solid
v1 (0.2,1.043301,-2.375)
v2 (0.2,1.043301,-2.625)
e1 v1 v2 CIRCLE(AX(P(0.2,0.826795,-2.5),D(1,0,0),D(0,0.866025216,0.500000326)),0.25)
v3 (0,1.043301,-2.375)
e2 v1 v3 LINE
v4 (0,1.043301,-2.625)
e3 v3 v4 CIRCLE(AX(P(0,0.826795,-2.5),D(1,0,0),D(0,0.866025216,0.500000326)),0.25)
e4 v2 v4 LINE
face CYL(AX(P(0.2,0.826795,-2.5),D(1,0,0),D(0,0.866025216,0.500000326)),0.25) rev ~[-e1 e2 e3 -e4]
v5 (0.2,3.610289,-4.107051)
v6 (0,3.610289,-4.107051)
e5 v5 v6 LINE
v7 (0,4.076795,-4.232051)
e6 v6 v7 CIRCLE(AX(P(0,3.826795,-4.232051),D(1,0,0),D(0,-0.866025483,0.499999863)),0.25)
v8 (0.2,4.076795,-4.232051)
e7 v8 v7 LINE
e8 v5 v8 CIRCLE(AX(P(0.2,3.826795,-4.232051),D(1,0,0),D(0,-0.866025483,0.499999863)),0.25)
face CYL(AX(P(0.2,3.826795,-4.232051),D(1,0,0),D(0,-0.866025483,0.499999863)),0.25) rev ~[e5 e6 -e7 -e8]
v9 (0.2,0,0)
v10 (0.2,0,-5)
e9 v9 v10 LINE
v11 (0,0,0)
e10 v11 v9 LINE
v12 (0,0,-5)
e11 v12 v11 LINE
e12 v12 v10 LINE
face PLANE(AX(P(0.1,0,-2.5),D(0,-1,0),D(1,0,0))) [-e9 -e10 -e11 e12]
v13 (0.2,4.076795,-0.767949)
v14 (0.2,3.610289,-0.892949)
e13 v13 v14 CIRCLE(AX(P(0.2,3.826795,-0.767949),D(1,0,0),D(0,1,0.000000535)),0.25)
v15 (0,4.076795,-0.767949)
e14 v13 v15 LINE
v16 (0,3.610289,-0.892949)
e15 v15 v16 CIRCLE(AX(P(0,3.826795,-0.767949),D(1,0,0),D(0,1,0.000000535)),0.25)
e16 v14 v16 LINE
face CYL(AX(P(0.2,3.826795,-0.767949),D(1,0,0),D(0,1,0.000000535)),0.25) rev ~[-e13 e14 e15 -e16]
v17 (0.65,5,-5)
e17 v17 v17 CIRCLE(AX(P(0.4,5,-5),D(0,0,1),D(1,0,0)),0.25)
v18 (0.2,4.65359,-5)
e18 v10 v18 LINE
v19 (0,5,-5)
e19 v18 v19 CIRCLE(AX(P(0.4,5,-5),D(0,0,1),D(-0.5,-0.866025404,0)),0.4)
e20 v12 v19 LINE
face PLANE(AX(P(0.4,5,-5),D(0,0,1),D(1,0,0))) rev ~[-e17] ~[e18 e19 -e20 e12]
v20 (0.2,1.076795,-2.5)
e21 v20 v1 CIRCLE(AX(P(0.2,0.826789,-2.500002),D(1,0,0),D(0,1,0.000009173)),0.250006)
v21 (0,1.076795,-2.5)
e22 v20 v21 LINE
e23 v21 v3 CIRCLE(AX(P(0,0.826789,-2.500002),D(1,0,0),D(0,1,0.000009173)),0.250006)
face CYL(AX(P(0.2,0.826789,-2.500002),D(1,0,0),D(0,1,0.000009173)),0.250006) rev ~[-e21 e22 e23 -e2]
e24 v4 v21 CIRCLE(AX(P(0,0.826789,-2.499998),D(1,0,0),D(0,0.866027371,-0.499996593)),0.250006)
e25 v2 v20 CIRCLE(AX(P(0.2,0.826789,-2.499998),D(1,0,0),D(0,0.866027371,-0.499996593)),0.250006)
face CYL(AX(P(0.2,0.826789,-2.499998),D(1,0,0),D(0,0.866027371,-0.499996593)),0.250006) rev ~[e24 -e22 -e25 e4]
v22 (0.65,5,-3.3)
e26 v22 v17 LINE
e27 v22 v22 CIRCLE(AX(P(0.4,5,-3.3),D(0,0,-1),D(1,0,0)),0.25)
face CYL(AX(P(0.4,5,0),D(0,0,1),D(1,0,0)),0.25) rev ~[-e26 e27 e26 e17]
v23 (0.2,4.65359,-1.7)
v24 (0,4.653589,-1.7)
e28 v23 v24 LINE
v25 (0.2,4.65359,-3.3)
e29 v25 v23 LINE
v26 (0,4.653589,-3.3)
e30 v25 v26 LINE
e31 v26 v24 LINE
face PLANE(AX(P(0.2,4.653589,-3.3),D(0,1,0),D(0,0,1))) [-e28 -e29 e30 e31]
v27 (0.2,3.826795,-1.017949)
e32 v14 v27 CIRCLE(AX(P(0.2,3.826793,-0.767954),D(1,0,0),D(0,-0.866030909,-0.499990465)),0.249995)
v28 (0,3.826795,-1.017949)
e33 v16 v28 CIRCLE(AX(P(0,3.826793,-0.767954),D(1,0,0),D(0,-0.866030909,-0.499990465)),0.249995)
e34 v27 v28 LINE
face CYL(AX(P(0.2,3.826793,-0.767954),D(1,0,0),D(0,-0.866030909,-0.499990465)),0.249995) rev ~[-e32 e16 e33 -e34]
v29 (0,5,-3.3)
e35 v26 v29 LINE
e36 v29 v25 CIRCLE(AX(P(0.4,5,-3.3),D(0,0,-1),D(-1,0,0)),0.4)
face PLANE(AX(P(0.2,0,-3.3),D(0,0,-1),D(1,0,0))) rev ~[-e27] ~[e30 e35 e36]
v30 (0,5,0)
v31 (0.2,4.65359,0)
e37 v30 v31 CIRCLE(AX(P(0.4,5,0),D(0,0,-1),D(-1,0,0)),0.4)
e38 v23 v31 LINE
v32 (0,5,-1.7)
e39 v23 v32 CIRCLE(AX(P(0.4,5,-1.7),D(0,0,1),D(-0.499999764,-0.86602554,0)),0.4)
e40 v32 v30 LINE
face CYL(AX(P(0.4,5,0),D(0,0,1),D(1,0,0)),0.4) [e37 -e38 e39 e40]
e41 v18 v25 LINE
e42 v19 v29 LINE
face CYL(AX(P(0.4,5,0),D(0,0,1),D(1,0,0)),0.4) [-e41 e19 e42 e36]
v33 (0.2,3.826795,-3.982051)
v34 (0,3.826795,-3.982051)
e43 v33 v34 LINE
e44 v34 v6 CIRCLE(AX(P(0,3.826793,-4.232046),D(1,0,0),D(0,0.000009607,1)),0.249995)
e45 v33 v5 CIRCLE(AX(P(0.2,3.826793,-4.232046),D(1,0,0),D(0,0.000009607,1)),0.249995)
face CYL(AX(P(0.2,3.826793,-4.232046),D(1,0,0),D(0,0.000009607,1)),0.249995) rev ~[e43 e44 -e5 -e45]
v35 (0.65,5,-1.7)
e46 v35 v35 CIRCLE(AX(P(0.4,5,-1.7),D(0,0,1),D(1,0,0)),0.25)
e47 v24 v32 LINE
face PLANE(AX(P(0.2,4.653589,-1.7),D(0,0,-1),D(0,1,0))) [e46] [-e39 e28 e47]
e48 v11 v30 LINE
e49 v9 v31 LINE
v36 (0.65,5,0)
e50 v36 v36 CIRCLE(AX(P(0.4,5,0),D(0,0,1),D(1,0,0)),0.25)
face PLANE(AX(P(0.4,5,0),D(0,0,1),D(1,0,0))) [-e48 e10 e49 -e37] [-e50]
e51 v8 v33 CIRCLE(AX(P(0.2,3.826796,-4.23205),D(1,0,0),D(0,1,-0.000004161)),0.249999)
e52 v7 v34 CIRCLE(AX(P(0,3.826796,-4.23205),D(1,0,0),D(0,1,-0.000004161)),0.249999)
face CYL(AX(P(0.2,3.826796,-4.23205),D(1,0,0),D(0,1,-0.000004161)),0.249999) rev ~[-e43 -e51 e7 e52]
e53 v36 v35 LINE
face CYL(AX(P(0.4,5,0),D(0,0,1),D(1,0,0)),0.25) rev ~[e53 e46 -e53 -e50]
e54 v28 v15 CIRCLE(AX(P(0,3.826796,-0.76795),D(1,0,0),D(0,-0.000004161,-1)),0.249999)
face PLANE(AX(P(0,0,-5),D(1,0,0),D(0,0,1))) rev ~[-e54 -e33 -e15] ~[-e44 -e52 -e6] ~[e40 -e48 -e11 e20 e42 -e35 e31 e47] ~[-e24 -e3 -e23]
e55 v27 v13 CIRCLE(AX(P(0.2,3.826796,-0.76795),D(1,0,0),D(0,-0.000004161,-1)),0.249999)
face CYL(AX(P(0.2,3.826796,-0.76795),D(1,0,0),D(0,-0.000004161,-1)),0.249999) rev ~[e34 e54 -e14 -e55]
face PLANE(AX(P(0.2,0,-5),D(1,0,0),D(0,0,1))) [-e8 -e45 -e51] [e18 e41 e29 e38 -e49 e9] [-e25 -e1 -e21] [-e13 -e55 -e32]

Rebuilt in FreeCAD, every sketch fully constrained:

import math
import FreeCAD as App
import Part
import Sketcher

V = App.Vector


def add_polygon(sketch, points):
    """Adds a closed chain of lines whose ends are joined by coincident constraints."""
    first, n = sketch.GeometryCount, len(points)
    for a, b in zip(points, points[1:] + points[:1]):
        sketch.addGeometry(Part.LineSegment(App.Vector(*a, 0), App.Vector(*b, 0)), False)
    for i in range(n):
        sketch.addConstraint(Sketcher.Constraint("Coincident", first + i, 2, first + (i + 1) % n, 1))

doc = App.newDocument("Part")
body = doc.addObject("PartDesign::Body", "Body")

# Sketch on XZ plane
sketch1 = body.newObject("Sketcher::SketchObject", "Sketch")
sketch1.AttachmentSupport = (doc.getObject("XZ_Plane"), [""])
sketch1.MapMode = "FlatFace"
add_polygon(sketch1, [(0, 0), (0, -5), (0.2, -5), (0.2, 0)])  # lines 0-3
sketch1.addConstraint(Sketcher.Constraint("Vertical", 0))
sketch1.addConstraint(Sketcher.Constraint("Horizontal", 1))
sketch1.addConstraint(Sketcher.Constraint("Vertical", 2))
sketch1.addConstraint(Sketcher.Constraint("Horizontal", 3))
sketch1.addConstraint(Sketcher.Constraint("Coincident", 3, 2, -1, 1))
sketch1.addConstraint(Sketcher.Constraint("DistanceY", 0, 2, 0, 1, 5.0))
sketch1.addConstraint(Sketcher.Constraint("DistanceX", 1, 1, 1, 2, 0.2))
pad1 = body.newObject("PartDesign::Pad", "Pad")
pad1.Profile = sketch1
pad1.Length = 5
pad1.Reversed = True

# Sketch on XY plane
sketch2 = body.newObject("Sketcher::SketchObject", "Sketch001")
sketch2.AttachmentSupport = (doc.getObject("XY_Plane"), [""])
sketch2.MapMode = "FlatFace"
sketch2.addGeometry(Part.Circle(V(0.4, 5, 0), V(0, 0, 1), 0.4), False)
sketch2.addConstraint(Sketcher.Constraint("Diameter", 0, 0.8))
sketch2.addConstraint(Sketcher.Constraint("DistanceY", -1, 1, 0, 3, 5.0))
sketch2.addConstraint(Sketcher.Constraint("DistanceX", -1, 1, 0, 3, 0.4))
pad2 = body.newObject("PartDesign::Pad", "Pad001")
pad2.Profile = sketch2
pad2.Length = 5
pad2.Reversed = True

# Sketch on XY plane
sketch3 = body.newObject("Sketcher::SketchObject", "Sketch002")
sketch3.AttachmentSupport = (doc.getObject("XY_Plane"), [""])
sketch3.MapMode = "FlatFace"
sketch3.addGeometry(Part.Circle(V(0.4, 5, 0), V(0, 0, 1), 0.25), False)
sketch3.addConstraint(Sketcher.Constraint("Diameter", 0, 0.5))
sketch3.addConstraint(Sketcher.Constraint("DistanceY", -1, 1, 0, 3, 5.0))
sketch3.addConstraint(Sketcher.Constraint("DistanceX", -1, 1, 0, 3, 0.4))
pocket1 = body.newObject("PartDesign::Pocket", "Pocket")
pocket1.Profile = sketch3
pocket1.Type = "ThroughAll"

# Sketch on XZ plane
sketch4 = body.newObject("Sketcher::SketchObject", "Sketch003")
sketch4.AttachmentSupport = (doc.getObject("XZ_Plane"), [""])
sketch4.MapMode = "FlatFace"
add_polygon(sketch4, [(0.2, -1.7), (0.2, -3.3), (0.933872, -3.3), (0.933872, -1.7)])  # lines 0-3
sketch4.addConstraint(Sketcher.Constraint("Vertical", 0))
sketch4.addConstraint(Sketcher.Constraint("Horizontal", 1))
sketch4.addConstraint(Sketcher.Constraint("Vertical", 2))
sketch4.addConstraint(Sketcher.Constraint("Horizontal", 3))
sketch4.addConstraint(Sketcher.Constraint("DistanceY", 0, 2, 0, 1, 1.6))
sketch4.addConstraint(Sketcher.Constraint("DistanceX", -1, 1, 0, 2, 0.2))
sketch4.addConstraint(Sketcher.Constraint("DistanceY", 0, 2, -1, 1, 3.3))
sketch4.addConstraint(Sketcher.Constraint("DistanceX", 1, 1, 1, 2, 0.733872))
pocket2 = body.newObject("PartDesign::Pocket", "Pocket001")
pocket2.Profile = sketch4
pocket2.Type = "ThroughAll"

# Sketch on YZ plane
sketch5 = body.newObject("Sketcher::SketchObject", "Sketch004")
sketch5.AttachmentSupport = (doc.getObject("YZ_Plane"), [""])
sketch5.MapMode = "FlatFace"
sketch5.AttachmentOffset = App.Placement(V(0, 0, 0.2), App.Rotation())
add_polygon(sketch5, [(4.653589, -1.7), (4.653589, -3.3), (5.705455, -3.3), (5.705455, -1.7)])  # lines 0-3
sketch5.addConstraint(Sketcher.Constraint("Vertical", 0))
sketch5.addConstraint(Sketcher.Constraint("Horizontal", 1))
sketch5.addConstraint(Sketcher.Constraint("Vertical", 2))
sketch5.addConstraint(Sketcher.Constraint("Horizontal", 3))
sketch5.addConstraint(Sketcher.Constraint("DistanceY", 0, 2, 0, 1, 1.6))
sketch5.addConstraint(Sketcher.Constraint("DistanceY", 0, 2, -1, 1, 3.3))
sketch5.addConstraint(Sketcher.Constraint("DistanceX", 1, 1, 1, 2, 1.051865))
sketch5.addConstraint(Sketcher.Constraint("DistanceX", -1, 1, 0, 2, 4.653589))
pocket3 = body.newObject("PartDesign::Pocket", "Pocket002")
pocket3.Profile = sketch5
pocket3.Type = "ThroughAll"

# Sketch on YZ plane
sketch6 = body.newObject("Sketcher::SketchObject", "Sketch005")
sketch6.AttachmentSupport = (doc.getObject("YZ_Plane"), [""])
sketch6.MapMode = "FlatFace"
sketch6.AttachmentOffset = App.Placement(V(0, 0, 0.2), App.Rotation())
sketch6.addGeometry(Part.ArcOfCircle(Part.Circle(V(3.826793, -0.767954, 0), V(0, 0, 1), 0.249995), math.radians(-150.000631), math.radians(-89.999449)), False)
sketch6.addGeometry(Part.ArcOfCircle(Part.Circle(V(3.826796, -0.76795, 0), V(0, 0, 1), 0.249999), math.radians(-90.000238), math.radians(0.000238)), False)
sketch6.addGeometry(Part.ArcOfCircle(Part.Circle(V(3.826795, -0.767949, 0), V(0, 0, 1), 0.25), math.radians(0.000031), math.radians(209.999991)), False)
sketch6.addGeometry(Part.ArcOfCircle(Part.Circle(V(3.826793, -4.232046, 0), V(0, 0, 1), 0.249995), math.radians(89.999449), math.radians(150.000631)), False)
sketch6.addGeometry(Part.ArcOfCircle(Part.Circle(V(3.826795, -4.232051, 0), V(0, 0, 1), 0.25), math.radians(150.000009), math.radians(359.999969)), False)
sketch6.addGeometry(Part.ArcOfCircle(Part.Circle(V(3.826796, -4.23205, 0), V(0, 0, 1), 0.249999), math.radians(-0.000238), math.radians(90.000238)), False)
sketch6.addGeometry(Part.ArcOfCircle(Part.Circle(V(0.826795, -2.5, 0), V(0, 0, 1), 0.25), math.radians(30.000022), math.radians(329.999978)), False)
sketch6.addGeometry(Part.ArcOfCircle(Part.Circle(V(0.826789, -2.499998, 0), V(0, 0, 1), 0.250006), math.radians(-29.999774), math.radians(-0.000526)), False)
sketch6.addGeometry(Part.ArcOfCircle(Part.Circle(V(0.826789, -2.500002, 0), V(0, 0, 1), 0.250006), math.radians(0.000526), math.radians(29.999774)), False)
sketch6.addConstraint(Sketcher.Constraint("Coincident", 0, 2, 1, 1))
sketch6.addConstraint(Sketcher.Constraint("Coincident", 1, 2, 2, 1))
sketch6.addConstraint(Sketcher.Constraint("Coincident", 2, 2, 0, 1))
sketch6.addConstraint(Sketcher.Constraint("Coincident", 3, 2, 4, 1))
sketch6.addConstraint(Sketcher.Constraint("Coincident", 4, 2, 5, 1))
sketch6.addConstraint(Sketcher.Constraint("Coincident", 5, 2, 3, 1))
sketch6.addConstraint(Sketcher.Constraint("Coincident", 6, 2, 7, 1))
sketch6.addConstraint(Sketcher.Constraint("Coincident", 7, 2, 8, 1))
sketch6.addConstraint(Sketcher.Constraint("Coincident", 8, 2, 6, 1))
sketch6.addConstraint(Sketcher.Constraint("Coincident", 1, 3, 0, 3))
sketch6.addConstraint(Sketcher.Constraint("Coincident", 4, 3, 3, 3))
sketch6.addConstraint(Sketcher.Constraint("Coincident", 7, 3, 6, 3))
sketch6.addConstraint(Sketcher.Constraint("Equal", 1, 2))
sketch6.addConstraint(Sketcher.Constraint("Equal", 0, 3))
sketch6.addConstraint(Sketcher.Constraint("Equal", 4, 5))
sketch6.addConstraint(Sketcher.Constraint("Equal", 5, 6))
sketch6.addConstraint(Sketcher.Constraint("Equal", 7, 8))
sketch6.addConstraint(Sketcher.Constraint("Horizontal", 2, 3, 1, 2))
sketch6.addConstraint(Sketcher.Constraint("Horizontal", 5, 3, 4, 2))
sketch6.addConstraint(Sketcher.Constraint("Horizontal", 6, 3, 7, 2))
sketch6.addConstraint(Sketcher.Constraint("Vertical", 0, 3, 3, 3))
sketch6.addConstraint(Sketcher.Constraint("Vertical", 5, 3, 0, 2))
sketch6.addConstraint(Sketcher.Constraint("Vertical", 2, 2, 3, 2))
sketch6.addConstraint(Sketcher.Constraint("Vertical", 0, 2, 5, 2))
sketch6.addConstraint(Sketcher.Constraint("Vertical", 6, 2, 8, 2))
sketch6.addConstraint(Sketcher.Constraint("Radius", 1, 0.249999))
sketch6.addConstraint(Sketcher.Constraint("DistanceX", 6, 3, 2, 3, 3.0))
sketch6.addConstraint(Sketcher.Constraint("DistanceY", 6, 3, -1, 1, 2.5))
sketch6.addConstraint(Sketcher.Constraint("DistanceY", 6, 2, 8, 2, 0.25))
sketch6.addConstraint(Sketcher.Constraint("DistanceY", 0, 2, 2, 2, 0.125))
sketch6.addConstraint(Sketcher.Constraint("DistanceX", -1, 1, 6, 2, 1.043301))
sketch6.addConstraint(Sketcher.Constraint("DistanceY", 4, 3, 1, 3, 3.464101))
sketch6.addConstraint(Sketcher.Constraint("DistanceY", 1, 3, -1, 1, 0.76795))
pocket4 = body.newObject("PartDesign::Pocket", "Pocket003")
pocket4.Profile = sketch6
pocket4.Type = "ThroughAll"

doc.recompute()
